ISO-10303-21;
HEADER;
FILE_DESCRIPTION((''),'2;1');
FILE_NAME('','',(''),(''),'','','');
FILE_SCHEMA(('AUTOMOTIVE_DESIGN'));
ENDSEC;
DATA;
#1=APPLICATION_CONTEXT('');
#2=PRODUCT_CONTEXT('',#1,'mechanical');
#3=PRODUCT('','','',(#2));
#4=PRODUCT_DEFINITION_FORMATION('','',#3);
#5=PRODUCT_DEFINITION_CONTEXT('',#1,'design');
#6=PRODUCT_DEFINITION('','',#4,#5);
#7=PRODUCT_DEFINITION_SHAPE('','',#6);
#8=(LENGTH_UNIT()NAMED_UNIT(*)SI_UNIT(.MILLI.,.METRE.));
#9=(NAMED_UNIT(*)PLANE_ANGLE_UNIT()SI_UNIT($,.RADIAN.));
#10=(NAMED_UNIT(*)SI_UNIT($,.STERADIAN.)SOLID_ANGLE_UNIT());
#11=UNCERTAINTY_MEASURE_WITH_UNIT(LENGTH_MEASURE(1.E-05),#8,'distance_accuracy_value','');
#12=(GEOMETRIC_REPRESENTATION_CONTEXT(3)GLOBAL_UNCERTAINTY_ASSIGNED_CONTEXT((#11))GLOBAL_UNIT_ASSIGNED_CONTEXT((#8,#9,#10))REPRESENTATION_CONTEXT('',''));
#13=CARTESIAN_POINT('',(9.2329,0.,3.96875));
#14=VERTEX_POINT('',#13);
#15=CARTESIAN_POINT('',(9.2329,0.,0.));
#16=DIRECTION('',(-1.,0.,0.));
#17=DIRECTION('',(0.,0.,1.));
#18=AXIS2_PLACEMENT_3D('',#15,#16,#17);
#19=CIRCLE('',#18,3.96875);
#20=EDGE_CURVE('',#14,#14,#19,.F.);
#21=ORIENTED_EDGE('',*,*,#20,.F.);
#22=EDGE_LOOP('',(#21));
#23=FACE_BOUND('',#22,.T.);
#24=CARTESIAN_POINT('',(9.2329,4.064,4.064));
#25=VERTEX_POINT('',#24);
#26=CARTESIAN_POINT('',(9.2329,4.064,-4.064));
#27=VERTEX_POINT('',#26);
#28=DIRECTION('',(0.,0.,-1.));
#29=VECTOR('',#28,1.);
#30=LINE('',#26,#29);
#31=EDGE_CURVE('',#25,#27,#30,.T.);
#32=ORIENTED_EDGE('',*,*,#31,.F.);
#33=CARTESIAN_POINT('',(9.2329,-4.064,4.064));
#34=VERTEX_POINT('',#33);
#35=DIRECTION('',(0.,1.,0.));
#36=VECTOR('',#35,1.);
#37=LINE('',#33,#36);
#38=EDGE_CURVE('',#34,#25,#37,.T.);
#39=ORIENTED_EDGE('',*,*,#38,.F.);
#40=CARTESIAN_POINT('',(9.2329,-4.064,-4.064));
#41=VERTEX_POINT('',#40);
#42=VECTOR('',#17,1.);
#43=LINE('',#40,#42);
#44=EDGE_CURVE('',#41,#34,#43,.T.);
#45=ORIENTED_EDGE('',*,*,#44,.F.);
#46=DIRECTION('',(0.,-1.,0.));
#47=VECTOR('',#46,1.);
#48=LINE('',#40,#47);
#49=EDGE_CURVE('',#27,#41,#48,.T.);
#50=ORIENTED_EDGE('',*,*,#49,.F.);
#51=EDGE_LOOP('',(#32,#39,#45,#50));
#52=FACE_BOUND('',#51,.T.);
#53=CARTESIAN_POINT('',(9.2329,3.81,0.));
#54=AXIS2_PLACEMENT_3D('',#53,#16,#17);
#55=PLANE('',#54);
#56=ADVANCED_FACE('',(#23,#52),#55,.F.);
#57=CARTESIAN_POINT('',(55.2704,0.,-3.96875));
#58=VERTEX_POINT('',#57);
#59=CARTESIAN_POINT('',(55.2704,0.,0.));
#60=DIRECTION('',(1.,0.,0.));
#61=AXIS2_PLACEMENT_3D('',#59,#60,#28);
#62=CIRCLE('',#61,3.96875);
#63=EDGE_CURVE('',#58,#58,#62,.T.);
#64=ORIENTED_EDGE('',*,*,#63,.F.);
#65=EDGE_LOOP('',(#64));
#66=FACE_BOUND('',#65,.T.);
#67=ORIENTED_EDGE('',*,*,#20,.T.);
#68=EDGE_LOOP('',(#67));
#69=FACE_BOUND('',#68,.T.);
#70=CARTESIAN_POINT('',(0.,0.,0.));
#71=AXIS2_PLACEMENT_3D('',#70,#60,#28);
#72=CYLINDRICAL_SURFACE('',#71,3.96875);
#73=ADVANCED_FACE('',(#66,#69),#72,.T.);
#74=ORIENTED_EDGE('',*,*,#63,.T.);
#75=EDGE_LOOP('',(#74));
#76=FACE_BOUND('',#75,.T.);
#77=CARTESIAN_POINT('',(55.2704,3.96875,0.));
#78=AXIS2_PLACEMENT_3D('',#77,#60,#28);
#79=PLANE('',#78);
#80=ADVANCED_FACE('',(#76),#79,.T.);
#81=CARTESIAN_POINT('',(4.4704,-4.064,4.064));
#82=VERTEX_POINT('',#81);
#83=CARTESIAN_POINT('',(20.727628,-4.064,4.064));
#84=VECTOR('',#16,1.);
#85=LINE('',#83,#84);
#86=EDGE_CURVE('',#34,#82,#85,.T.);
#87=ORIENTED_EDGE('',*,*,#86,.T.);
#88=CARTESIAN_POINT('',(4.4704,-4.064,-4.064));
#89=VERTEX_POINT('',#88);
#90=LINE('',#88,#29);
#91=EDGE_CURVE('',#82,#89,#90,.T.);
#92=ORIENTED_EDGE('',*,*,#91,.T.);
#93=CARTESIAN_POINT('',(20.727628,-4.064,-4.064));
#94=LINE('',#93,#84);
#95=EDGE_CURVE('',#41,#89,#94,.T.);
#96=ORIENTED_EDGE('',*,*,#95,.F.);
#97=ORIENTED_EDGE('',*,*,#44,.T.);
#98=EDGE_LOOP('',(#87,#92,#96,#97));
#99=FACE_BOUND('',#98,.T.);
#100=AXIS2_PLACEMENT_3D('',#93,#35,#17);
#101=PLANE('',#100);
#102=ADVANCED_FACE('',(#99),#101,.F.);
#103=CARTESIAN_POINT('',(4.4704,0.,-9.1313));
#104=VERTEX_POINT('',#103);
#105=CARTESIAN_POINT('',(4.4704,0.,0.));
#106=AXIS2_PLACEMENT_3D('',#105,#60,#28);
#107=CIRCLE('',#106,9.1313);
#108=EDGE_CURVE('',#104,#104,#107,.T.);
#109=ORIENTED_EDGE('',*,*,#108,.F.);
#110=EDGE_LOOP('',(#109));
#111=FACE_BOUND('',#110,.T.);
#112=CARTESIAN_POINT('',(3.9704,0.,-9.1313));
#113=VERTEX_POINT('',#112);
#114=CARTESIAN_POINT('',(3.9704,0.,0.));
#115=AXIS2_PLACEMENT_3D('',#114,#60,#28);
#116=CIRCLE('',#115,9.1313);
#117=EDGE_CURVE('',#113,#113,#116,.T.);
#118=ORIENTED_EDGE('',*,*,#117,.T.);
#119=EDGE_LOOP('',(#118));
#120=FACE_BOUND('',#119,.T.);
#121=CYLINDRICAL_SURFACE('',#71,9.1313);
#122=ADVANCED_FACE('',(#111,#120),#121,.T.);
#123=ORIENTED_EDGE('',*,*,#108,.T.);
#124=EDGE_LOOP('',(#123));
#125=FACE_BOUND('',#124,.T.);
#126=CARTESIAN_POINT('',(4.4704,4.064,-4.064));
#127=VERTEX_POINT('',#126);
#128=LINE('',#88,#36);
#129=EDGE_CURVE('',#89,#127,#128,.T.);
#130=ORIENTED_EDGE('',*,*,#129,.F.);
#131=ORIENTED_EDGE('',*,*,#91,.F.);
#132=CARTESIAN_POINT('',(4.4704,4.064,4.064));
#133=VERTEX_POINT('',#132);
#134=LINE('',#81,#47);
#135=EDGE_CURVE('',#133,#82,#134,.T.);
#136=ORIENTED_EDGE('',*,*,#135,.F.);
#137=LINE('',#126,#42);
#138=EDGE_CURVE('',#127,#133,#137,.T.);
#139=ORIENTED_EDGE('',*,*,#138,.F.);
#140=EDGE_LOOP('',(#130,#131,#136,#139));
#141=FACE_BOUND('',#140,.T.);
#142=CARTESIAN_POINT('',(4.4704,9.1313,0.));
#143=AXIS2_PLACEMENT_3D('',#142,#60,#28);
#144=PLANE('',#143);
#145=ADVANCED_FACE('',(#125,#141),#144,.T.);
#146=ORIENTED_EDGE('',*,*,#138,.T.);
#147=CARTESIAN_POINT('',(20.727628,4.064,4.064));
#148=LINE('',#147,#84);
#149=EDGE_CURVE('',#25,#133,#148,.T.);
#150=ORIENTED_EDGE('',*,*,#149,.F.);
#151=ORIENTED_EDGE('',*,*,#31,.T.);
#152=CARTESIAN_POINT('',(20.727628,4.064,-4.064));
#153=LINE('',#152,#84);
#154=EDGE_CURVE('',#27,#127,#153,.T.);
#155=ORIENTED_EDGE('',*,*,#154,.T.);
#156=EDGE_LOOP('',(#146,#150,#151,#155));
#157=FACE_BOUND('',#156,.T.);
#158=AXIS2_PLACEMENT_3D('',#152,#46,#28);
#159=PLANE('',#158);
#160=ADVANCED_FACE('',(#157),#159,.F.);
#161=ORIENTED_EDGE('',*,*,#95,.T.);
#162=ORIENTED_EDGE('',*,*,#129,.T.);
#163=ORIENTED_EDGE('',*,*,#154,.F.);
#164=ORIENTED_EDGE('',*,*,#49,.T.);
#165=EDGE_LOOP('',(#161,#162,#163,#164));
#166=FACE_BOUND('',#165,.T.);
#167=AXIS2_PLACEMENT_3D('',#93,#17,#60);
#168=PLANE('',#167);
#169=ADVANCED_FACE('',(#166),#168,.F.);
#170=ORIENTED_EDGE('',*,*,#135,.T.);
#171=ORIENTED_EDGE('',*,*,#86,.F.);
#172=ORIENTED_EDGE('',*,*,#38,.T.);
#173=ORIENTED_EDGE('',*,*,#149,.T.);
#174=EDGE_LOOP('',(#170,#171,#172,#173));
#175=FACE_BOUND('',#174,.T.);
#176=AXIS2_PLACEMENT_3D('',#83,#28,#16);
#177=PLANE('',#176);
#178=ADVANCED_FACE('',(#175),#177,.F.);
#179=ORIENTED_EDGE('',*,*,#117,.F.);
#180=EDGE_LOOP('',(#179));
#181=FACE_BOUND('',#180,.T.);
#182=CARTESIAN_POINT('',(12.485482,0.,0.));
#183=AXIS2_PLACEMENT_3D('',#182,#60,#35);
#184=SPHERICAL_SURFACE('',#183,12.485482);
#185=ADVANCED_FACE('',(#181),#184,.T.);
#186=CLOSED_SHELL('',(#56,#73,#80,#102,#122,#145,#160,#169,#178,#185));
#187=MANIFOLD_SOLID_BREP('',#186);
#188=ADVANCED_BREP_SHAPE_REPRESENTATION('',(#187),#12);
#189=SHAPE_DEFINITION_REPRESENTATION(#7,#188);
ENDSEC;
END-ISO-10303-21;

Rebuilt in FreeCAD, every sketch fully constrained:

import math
import FreeCAD as App
import Part
import Sketcher

V = App.Vector
Q = App.Units.Quantity

doc = App.newDocument("Part")
params = doc.addObject("Spreadsheet::Sheet", "Params")
for row, (alias, value) in enumerate([
    ("sketch1_width", "2.176 in"),
    ("sketch1_width2", "1.8125 in"),
    ("sketch1_width3", "0.1875 in"),
    ("sketch1_height", "0.15625 in"),
    ("revolution_angle", "360 deg"),
    ("sketch2_width", "0.32 in"),
    ("pad1_length", "0.1875 in"),
], start=1):
    params.set(f"A{row}", alias)
    params.set(f"B{row}", "=" + value)
    params.setAlias(f"B{row}", alias)

body = doc.addObject("PartDesign::Body", "Body")

# Sketch on XY plane
sketch1 = doc.addObject("Sketcher::SketchObject", "Sketch")
body.addObject(sketch1)
sketch1.AttachmentSupport = (doc.XY_Plane, [""])
sketch1.MapMode = "FlatFace"
sketch1.addGeometry(Part.LineSegment(V(4.47, 9.13, 0), V(3.97, 9.13, 0)), False)
sketch1.addGeometry(Part.ArcOfCircle(Part.Circle(V(12.49, 0, 0), V(0, 0, 1), 12.49), math.radians(133), math.radians(180)), False)
sketch1.addGeometry(Part.LineSegment(V(0, 0, 0), V(55.27, 0, 0)), False)
sketch1.addGeometry(Part.LineSegment(V(55.27, 0, 0), V(55.27, 3.97, 0)), False)
sketch1.addGeometry(Part.LineSegment(V(55.27, 3.97, 0), V(9.23, 3.97, 0)), False)
sketch1.addGeometry(Part.LineSegment(V(9.23, 3.97, 0), V(9.23, 3.81, 0)), False)
sketch1.addGeometry(Part.LineSegment(V(9.23, 3.81, 0), V(4.47, 3.81, 0)), False)
sketch1.addGeometry(Part.LineSegment(V(4.47, 3.81, 0), V(4.47, 9.13, 0)), False)
sketch1.addConstraint(Sketcher.Constraint("Coincident", 0, 2, 1, 1))
sketch1.addConstraint(Sketcher.Constraint("Coincident", 1, 2, 2, 1))
sketch1.addConstraint(Sketcher.Constraint("Coincident", 2, 2, 3, 1))
sketch1.addConstraint(Sketcher.Constraint("Coincident", 3, 2, 4, 1))
sketch1.addConstraint(Sketcher.Constraint("Coincident", 4, 2, 5, 1))
sketch1.addConstraint(Sketcher.Constraint("Coincident", 5, 2, 6, 1))
sketch1.addConstraint(Sketcher.Constraint("Coincident", 6, 2, 7, 1))
sketch1.addConstraint(Sketcher.Constraint("Coincident", 7, 2, 0, 1))
sketch1.addConstraint(Sketcher.Constraint("Horizontal", 0))
sketch1.addConstraint(Sketcher.Constraint("Horizontal", 2))
sketch1.addConstraint(Sketcher.Constraint("Vertical", 3))
sketch1.addConstraint(Sketcher.Constraint("Horizontal", 4))
sketch1.addConstraint(Sketcher.Constraint("Vertical", 5))
sketch1.addConstraint(Sketcher.Constraint("Horizontal", 6))
sketch1.addConstraint(Sketcher.Constraint("Vertical", 7))
sketch1.addConstraint(Sketcher.Constraint("Coincident", 1, 2, -1, 1))
sketch1.addConstraint(Sketcher.Constraint("PointOnObject", 1, 3, -1))
sketch1.addConstraint(Sketcher.Constraint("DistanceX", 2, 1, 2, 2, Q("2.176 in")))
sketch1.addConstraint(Sketcher.Constraint("DistanceX", 4, 2, 4, 1, Q("1.8125 in")))
sketch1.addConstraint(Sketcher.Constraint("DistanceX", 6, 2, 6, 1, Q("0.1875 in")))
sketch1.addConstraint(Sketcher.Constraint("DistanceY", 3, 1, 3, 2, Q("0.15625 in")))
sketch1.addConstraint(Sketcher.Constraint("DistanceY", -1, 1, 5, 2, Q("0.15 in")))
sketch1.addConstraint(Sketcher.Constraint("DistanceY", 7, 1, 7, 2, Q("0.2095 in")))
sketch1.addConstraint(Sketcher.Constraint("DistanceX", 0, 2, 0, 1, 0.5))
sketch1.setExpression("Constraints[17]", "Params.sketch1_width")
sketch1.setExpression("Constraints[18]", "Params.sketch1_width2")
sketch1.setExpression("Constraints[19]", "Params.sketch1_width3")
sketch1.setExpression("Constraints[20]", "Params.sketch1_height")
revolution = doc.addObject("PartDesign::Revolution", "Revolution")
body.addObject(revolution)
revolution.Profile = sketch1
revolution.ReferenceAxis = (sketch1, ["H_Axis"])
revolution.setExpression("Angle", "Params.revolution_angle")

# Sketch on YZ plane
sketch2 = doc.addObject("Sketcher::SketchObject", "Sketch001")
body.addObject(sketch2)
sketch2.AttachmentSupport = (doc.YZ_Plane, [""])
sketch2.MapMode = "FlatFace"
sketch2.AttachmentOffset = App.Placement(V(0, 0, 0.176 * 25.4), App.Rotation())
sketch2.addGeometry(Part.LineSegment(V(4, 4, 0), V(-4, 4, 0)), False)
sketch2.addGeometry(Part.LineSegment(V(-4, 4, 0), V(-4, -4, 0)), False)
sketch2.addGeometry(Part.LineSegment(V(-4, -4, 0), V(4, -4, 0)), False)
sketch2.addGeometry(Part.LineSegment(V(4, -4, 0), V(4, 4, 0)), False)
sketch2.addConstraint(Sketcher.Constraint("Coincident", 0, 2, 1, 1))
sketch2.addConstraint(Sketcher.Constraint("Coincident", 1, 2, 2, 1))
sketch2.addConstraint(Sketcher.Constraint("Coincident", 2, 2, 3, 1))
sketch2.addConstraint(Sketcher.Constraint("Coincident", 3, 2, 0, 1))
sketch2.addConstraint(Sketcher.Constraint("Horizontal", 0))
sketch2.addConstraint(Sketcher.Constraint("Vertical", 1))
sketch2.addConstraint(Sketcher.Constraint("Horizontal", 2))
sketch2.addConstraint(Sketcher.Constraint("Vertical", 3))
sketch2.addConstraint(Sketcher.Constraint("Symmetric", 0, 2, 2, 2, -1, 1))
sketch2.addConstraint(Sketcher.Constraint("Equal", 2, 1))
sketch2.addConstraint(Sketcher.Constraint("DistanceX", 0, 2, 0, 1, Q("0.32 in")))
sketch2.setExpression("Constraints[10]", "Params.sketch2_width")
pad1 = doc.addObject("PartDesign::Pad", "Pad")
body.addObject(pad1)
pad1.Profile = sketch2
pad1.setExpression("Length", "Params.pad1_length")

doc.recompute()
